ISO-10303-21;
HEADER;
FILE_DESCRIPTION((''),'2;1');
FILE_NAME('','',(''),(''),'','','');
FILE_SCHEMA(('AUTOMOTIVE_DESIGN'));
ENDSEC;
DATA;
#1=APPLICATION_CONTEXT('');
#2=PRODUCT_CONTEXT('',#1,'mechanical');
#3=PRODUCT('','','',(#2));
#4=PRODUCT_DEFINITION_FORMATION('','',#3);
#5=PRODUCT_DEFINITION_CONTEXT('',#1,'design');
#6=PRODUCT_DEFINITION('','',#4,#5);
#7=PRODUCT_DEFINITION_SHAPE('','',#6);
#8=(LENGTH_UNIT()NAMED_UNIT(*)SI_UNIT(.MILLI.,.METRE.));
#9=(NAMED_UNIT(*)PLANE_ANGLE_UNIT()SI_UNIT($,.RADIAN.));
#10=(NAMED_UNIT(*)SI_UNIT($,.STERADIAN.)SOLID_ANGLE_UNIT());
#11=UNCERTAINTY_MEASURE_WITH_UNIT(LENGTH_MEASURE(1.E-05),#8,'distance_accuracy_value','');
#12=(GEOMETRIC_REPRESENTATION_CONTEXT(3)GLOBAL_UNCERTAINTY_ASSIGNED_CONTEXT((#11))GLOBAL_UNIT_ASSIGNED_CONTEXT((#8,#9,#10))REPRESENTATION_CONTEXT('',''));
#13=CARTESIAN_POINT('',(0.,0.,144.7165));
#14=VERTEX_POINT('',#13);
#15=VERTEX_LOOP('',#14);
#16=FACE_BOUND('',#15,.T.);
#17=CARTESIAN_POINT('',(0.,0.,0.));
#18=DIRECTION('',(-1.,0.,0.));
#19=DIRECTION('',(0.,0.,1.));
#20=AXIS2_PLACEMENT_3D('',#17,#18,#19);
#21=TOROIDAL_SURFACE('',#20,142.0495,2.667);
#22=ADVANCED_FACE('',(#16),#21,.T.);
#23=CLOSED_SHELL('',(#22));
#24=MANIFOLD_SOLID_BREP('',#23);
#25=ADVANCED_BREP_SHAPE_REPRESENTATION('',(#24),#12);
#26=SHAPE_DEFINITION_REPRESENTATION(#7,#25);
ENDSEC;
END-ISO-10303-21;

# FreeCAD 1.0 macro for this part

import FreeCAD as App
import Part
import Sketcher
Q = App.Units.Quantity

doc = App.newDocument("Part")
params = doc.addObject("Spreadsheet::Sheet", "Params")
for row, (alias, value) in enumerate([
    ("sketch1_diameter", "0.21 in"),
    ("sketch2_diameter", "10.975 in"),
], start=1):
    params.set(f"A{row}", alias)
    params.set(f"B{row}", "=" + value)
    params.setAlias(f"B{row}", alias)

body = doc.addObject("PartDesign::Body", "Body")

# Sketch on XY plane
sketch1 = body.newObject("Sketcher::SketchObject", "Sketch")
sketch1.AttachmentSupport = (doc.getObject("XY_Plane"), [""])
sketch1.MapMode = "FlatFace"
sketch1.addGeometry(Part.Circle(App.Vector(0, 142, 0), App.Vector(0, 0, 1), 2.7), False)
sketch1.addConstraint(Sketcher.Constraint("PointOnObject", 0, 3, -2))
sketch1.addConstraint(Sketcher.Constraint("Diameter", 0, Q("0.21 in")))
sketch1.addConstraint(Sketcher.Constraint("DistanceY", -1, 1, 0, 3, Q("5.5925 in")))
sketch1.setExpression("Constraints[1]", "Params.sketch1_diameter")

# Sketch on YZ plane
sketch2 = body.newObject("Sketcher::SketchObject", "Sketch001")
sketch2.AttachmentSupport = (doc.getObject("YZ_Plane"), [""])
sketch2.MapMode = "FlatFace"
sketch2.addGeometry(Part.Circle(App.Vector(0, 0, 0), App.Vector(0, 0, 1), 139), False)
sketch2.addConstraint(Sketcher.Constraint("Coincident", 0, 3, -1, 1))
sketch2.addConstraint(Sketcher.Constraint("Diameter", 0, Q("10.975 in")))
sketch2.setExpression("Constraints[1]", "Params.sketch2_diameter")
doc.recompute()

additivepipe = body.newObject("PartDesign::AdditivePipe", "AdditivePipe")
additivepipe.Profile = sketch1
additivepipe.Spine = (sketch2, ["Edge1"])

doc.recompute()
